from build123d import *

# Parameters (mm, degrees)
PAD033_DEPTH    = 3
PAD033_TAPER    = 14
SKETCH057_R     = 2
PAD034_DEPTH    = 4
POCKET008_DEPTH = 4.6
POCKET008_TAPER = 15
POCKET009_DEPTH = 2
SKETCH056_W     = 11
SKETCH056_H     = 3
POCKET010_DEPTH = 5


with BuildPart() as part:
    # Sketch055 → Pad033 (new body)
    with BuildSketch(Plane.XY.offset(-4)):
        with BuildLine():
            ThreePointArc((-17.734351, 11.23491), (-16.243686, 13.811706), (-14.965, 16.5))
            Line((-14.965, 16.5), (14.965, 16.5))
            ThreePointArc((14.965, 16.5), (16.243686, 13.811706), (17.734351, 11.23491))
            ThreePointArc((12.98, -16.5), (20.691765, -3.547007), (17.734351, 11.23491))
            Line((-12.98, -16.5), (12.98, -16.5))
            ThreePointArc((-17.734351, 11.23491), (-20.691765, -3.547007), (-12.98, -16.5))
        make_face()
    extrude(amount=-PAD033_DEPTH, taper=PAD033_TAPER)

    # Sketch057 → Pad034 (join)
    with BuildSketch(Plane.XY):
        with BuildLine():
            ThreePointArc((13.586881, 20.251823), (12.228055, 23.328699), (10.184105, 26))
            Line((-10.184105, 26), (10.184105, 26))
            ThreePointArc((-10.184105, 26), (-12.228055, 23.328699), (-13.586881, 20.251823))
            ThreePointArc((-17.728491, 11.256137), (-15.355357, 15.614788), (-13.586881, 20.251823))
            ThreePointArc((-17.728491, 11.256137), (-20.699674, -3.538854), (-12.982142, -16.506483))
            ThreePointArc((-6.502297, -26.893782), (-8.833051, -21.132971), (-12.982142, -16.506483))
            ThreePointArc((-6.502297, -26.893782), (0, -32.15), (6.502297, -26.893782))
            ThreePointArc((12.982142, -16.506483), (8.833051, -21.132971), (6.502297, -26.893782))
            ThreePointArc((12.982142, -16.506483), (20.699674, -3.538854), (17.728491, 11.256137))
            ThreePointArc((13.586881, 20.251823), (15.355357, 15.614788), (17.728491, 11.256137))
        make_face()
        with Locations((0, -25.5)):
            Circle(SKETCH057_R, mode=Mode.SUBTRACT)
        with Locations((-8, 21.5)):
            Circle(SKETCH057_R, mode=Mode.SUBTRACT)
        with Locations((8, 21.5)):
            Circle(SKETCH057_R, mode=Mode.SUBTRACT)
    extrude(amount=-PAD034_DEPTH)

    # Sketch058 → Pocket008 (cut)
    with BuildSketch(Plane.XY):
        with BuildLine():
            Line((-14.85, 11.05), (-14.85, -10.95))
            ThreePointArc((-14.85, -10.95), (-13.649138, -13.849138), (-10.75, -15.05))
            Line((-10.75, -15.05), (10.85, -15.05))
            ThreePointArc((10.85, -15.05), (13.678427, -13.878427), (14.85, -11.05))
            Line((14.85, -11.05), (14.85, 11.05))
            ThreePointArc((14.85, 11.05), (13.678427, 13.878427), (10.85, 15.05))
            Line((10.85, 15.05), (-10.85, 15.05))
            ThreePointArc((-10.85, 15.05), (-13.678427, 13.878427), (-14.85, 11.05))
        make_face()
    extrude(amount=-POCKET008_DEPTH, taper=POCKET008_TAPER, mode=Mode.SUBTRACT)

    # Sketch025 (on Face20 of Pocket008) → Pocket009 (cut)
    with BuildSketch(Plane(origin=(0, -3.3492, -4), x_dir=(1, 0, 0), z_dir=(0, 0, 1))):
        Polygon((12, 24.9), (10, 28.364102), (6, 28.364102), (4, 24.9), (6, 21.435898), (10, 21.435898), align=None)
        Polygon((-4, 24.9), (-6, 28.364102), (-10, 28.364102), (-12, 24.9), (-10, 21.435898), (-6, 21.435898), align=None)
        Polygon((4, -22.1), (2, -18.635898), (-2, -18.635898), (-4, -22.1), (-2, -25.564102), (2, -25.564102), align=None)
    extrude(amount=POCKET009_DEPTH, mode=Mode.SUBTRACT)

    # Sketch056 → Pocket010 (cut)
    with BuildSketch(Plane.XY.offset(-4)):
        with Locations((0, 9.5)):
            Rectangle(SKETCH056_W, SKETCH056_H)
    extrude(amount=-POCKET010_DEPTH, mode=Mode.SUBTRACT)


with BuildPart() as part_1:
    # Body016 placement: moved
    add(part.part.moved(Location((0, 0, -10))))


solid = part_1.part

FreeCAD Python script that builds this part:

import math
import FreeCAD as App
import Part
import Sketcher
from FreeCAD import Vector
Q = App.Units.Quantity


def add_polygon(sketch, points):
    """Adds a closed chain of lines whose ends are joined by coincident constraints."""
    first, n = sketch.GeometryCount, len(points)
    for a, b in zip(points, points[1:] + points[:1]):
        sketch.addGeometry(Part.LineSegment(App.Vector(*a, 0), App.Vector(*b, 0)), False)
    for i in range(n):
        sketch.addConstraint(Sketcher.Constraint("Coincident", first + i, 2, first + (i + 1) % n, 1))

doc = App.newDocument("Part")
body = doc.addObject("PartDesign::Body", "Body")

sketch1 = body.newObject("Sketcher::SketchObject", "Sketch")
sketch1.AttachmentSupport = (doc.getObject("XY_Plane"), [""])
sketch1.MapMode = "FlatFace"
sketch1.AttachmentOffset = App.Placement(Vector(0, 0, -4), App.Rotation())
sketch1.addGeometry(Part.ArcOfCircle(Part.Circle(Vector(-49, 31, 0), Vector(0, 0, 1), 37), math.radians(-32.35), math.radians(-23.13)), False)
sketch1.addGeometry(Part.ArcOfCircle(Part.Circle(Vector(0, 0, 0), Vector(0, 0, 1), 21), math.radians(148), math.radians(232)), False)
sketch1.addGeometry(Part.LineSegment(Vector(-13, -16, 0), Vector(13, -16, 0)), False)
sketch1.addGeometry(Part.ArcOfCircle(Part.Circle(Vector(0, 0, 0), Vector(0, 0, 1), 21), math.radians(-52), math.radians(32)), False)
sketch1.addGeometry(Part.ArcOfCircle(Part.Circle(Vector(49, 31, 0), Vector(0, 0, 1), 37), math.radians(-156.87), math.radians(-147.65)), False)
sketch1.addGeometry(Part.LineSegment(Vector(15, 16, 0), Vector(-15, 16, 0)), False)
sketch1.addConstraint(Sketcher.Constraint("Tangent", 0, 1, 1, 1))
sketch1.addConstraint(Sketcher.Constraint("Coincident", 1, 2, 2, 1))
sketch1.addConstraint(Sketcher.Constraint("Coincident", 2, 2, 3, 1))
sketch1.addConstraint(Sketcher.Constraint("Tangent", 3, 2, 4, 2))
sketch1.addConstraint(Sketcher.Constraint("Coincident", 4, 1, 5, 1))
sketch1.addConstraint(Sketcher.Constraint("Coincident", 5, 2, 0, 2))
sketch1.addConstraint(Sketcher.Constraint("Horizontal", 2))
sketch1.addConstraint(Sketcher.Constraint("Horizontal", 5))
sketch1.addConstraint(Sketcher.Constraint("Coincident", 1, 3, -1, 1))
sketch1.addConstraint(Sketcher.Constraint("Coincident", 3, 3, -1, 1))
sketch1.addConstraint(Sketcher.Constraint("Equal", 1, 3))
sketch1.addConstraint(Sketcher.Constraint("Equal", 0, 4))
sketch1.addConstraint(Sketcher.Constraint("Horizontal", 0, 3, 4, 3))
sketch1.addConstraint(Sketcher.Constraint("DistanceY", 2, 2, 4, 1, 33.0))
sketch1.addConstraint(Sketcher.Constraint("DistanceX", 2, 1, 2, 2, 25.96))
sketch1.addConstraint(Sketcher.Constraint("DistanceX", 5, 2, 5, 1, 29.93))
sketch1.addConstraint(Sketcher.Constraint("DistanceY", 1, 2, -1, 1, 16.5))
sketch1.addConstraint(Sketcher.Constraint("Radius", 0, 36.999781))
pad1 = body.newObject("PartDesign::Pad", "Pad")
pad1.Profile = sketch1
pad1.Length = 3
pad1.Reversed = True
pad1.TaperAngle = -14

sketch2 = body.newObject("Sketcher::SketchObject", "Sketch001")
sketch2.AttachmentSupport = (doc.getObject("XY_Plane"), [""])
sketch2.MapMode = "FlatFace"
sketch2.addGeometry(Part.ArcOfCircle(Part.Circle(Vector(0, 16.1, 0), Vector(0, 0, 1), 14.2), math.radians(17), math.radians(44)), False)
sketch2.addGeometry(Part.LineSegment(Vector(10.2, 26, 0), Vector(-10.2, 26, 0)), False)
sketch2.addGeometry(Part.ArcOfCircle(Part.Circle(Vector(0, 16.1, 0), Vector(0, 0, 1), 14.2), math.radians(136), math.radians(163)), False)
sketch2.addGeometry(Part.ArcOfCircle(Part.Circle(Vector(-49, 31.1, 0), Vector(0, 0, 1), 37), math.radians(-32.41), math.radians(-17.03)), False)
sketch2.addGeometry(Part.ArcOfCircle(Part.Circle(Vector(0, 0, 0), Vector(0, 0, 1), 21), math.radians(148), math.radians(232)), False)
sketch2.addGeometry(Part.ArcOfCircle(Part.Circle(Vector(-24.1, -30.7, 0), Vector(0, 0, 1), 18), math.radians(12), math.radians(52)), False)
sketch2.addGeometry(Part.ArcOfCircle(Part.Circle(Vector(0, -25.5, 0), Vector(0, 0, 1), 6.6), math.radians(-168), math.radians(-12)), False)
sketch2.addGeometry(Part.ArcOfCircle(Part.Circle(Vector(24.1, -30.7, 0), Vector(0, 0, 1), 18), math.radians(128), math.radians(168)), False)
sketch2.addGeometry(Part.ArcOfCircle(Part.Circle(Vector(0, 0, 0), Vector(0, 0, 1), 21), math.radians(-52), math.radians(32)), False)
sketch2.addGeometry(Part.ArcOfCircle(Part.Circle(Vector(49, 31.1, 0), Vector(0, 0, 1), 37), math.radians(-162.97), math.radians(-147.59)), False)
sketch2.addGeometry(Part.Circle(Vector(0, -25.5, 0), Vector(0, 0, 1), 2), False)
sketch2.addGeometry(Part.Circle(Vector(-8, 21.5, 0), Vector(0, 0, 1), 2), False)
sketch2.addGeometry(Part.Circle(Vector(8, 21.5, 0), Vector(0, 0, 1), 2), False)
sketch2.addConstraint(Sketcher.Constraint("Coincident", 0, 2, 1, 1))
sketch2.addConstraint(Sketcher.Constraint("Coincident", 1, 2, 2, 1))
sketch2.addConstraint(Sketcher.Constraint("Tangent", 2, 2, 3, 2))
sketch2.addConstraint(Sketcher.Constraint("Tangent", 3, 1, 4, 1))
sketch2.addConstraint(Sketcher.Constraint("Tangent", 4, 2, 5, 2))
sketch2.addConstraint(Sketcher.Constraint("Tangent", 5, 1, 6, 1))
sketch2.addConstraint(Sketcher.Constraint("Tangent", 6, 2, 7, 2))
sketch2.addConstraint(Sketcher.Constraint("Tangent", 7, 1, 8, 1))
sketch2.addConstraint(Sketcher.Constraint("Tangent", 8, 2, 9, 2))
sketch2.addConstraint(Sketcher.Constraint("Tangent", 9, 1, 0, 1))
sketch2.addConstraint(Sketcher.Constraint("Horizontal", 1))
sketch2.addConstraint(Sketcher.Constraint("Coincident", 4, 3, -1, 1))
sketch2.addConstraint(Sketcher.Constraint("Coincident", 8, 3, -1, 1))
sketch2.addConstraint(Sketcher.Constraint("Coincident", 10, 3, 6, 3))
sketch2.addConstraint(Sketcher.Constraint("Equal", 0, 2))
sketch2.addConstraint(Sketcher.Constraint("Equal", 5, 7))
sketch2.addConstraint(Sketcher.Constraint("Equal", 4, 8))
sketch2.addConstraint(Sketcher.Constraint("Equal", 3, 9))
sketch2.addConstraint(Sketcher.Constraint("Equal", 10, 11))
sketch2.addConstraint(Sketcher.Constraint("Equal", 11, 12))
sketch2.addConstraint(Sketcher.Constraint("Symmetric", 0, 3, 2, 3, -2))
sketch2.addConstraint(Sketcher.Constraint("Symmetric", 11, 3, 12, 3, -2))
sketch2.addConstraint(Sketcher.Constraint("PointOnObject", 6, 3, -2))
sketch2.addConstraint(Sketcher.Constraint("Diameter", 10, 4.0))
sketch2.addConstraint(Sketcher.Constraint("Radius", 4, 21.000001))
sketch2.addConstraint(Sketcher.Constraint("Radius", 6, 6.649999))
sketch2.addConstraint(Sketcher.Constraint("DistanceX", 11, 3, -1, 1, 8.0))
sketch2.addConstraint(Sketcher.Constraint("DistanceY", -1, 1, 0, 2, 26.0))
sketch2.addConstraint(Sketcher.Constraint("DistanceY", 6, 3, -1, 1, 25.500001))
sketch2.addConstraint(Sketcher.Constraint("DistanceY", -1, 1, 11, 3, 21.5))
sketch2.addConstraint(Sketcher.Constraint("Radius", 0, 14.21001))
sketch2.addConstraint(Sketcher.Constraint("Radius", 3, 37.000035))
sketch2.addConstraint(Sketcher.Constraint("Radius", 5, 18.020007))
sketch2.addConstraint(Sketcher.Constraint("DistanceX", 1, 2, 1, 1, 20.36821))
sketch2.addConstraint(Sketcher.Constraint("DistanceY", 0, 3, 3, 3, 14.998399))
pad2 = body.newObject("PartDesign::Pad", "Pad001")
pad2.Profile = sketch2
pad2.Length = 4
pad2.Reversed = True

sketch3 = body.newObject("Sketcher::SketchObject", "Sketch002")
sketch3.AttachmentSupport = (doc.getObject("XY_Plane"), [""])
sketch3.MapMode = "FlatFace"
sketch3.addGeometry(Part.LineSegment(Vector(-14.8, 11.1, 0), Vector(-14.8, -10.9, 0)), False)
sketch3.addGeometry(Part.ArcOfCircle(Part.Circle(Vector(-10.8, -11, 0), Vector(0, 0, 1), 4.1), math.radians(180), math.radians(270)), False)
sketch3.addGeometry(Part.LineSegment(Vector(-10.8, -15.1, 0), Vector(10.8, -15.1, 0)), False)
sketch3.addGeometry(Part.ArcOfCircle(Part.Circle(Vector(10.8, -11, 0), Vector(0, 0, 1), 4), math.radians(-90), math.radians(0)), False)
sketch3.addGeometry(Part.LineSegment(Vector(14.8, -11.1, 0), Vector(14.8, 11.1, 0)), False)
sketch3.addGeometry(Part.ArcOfCircle(Part.Circle(Vector(10.8, 11, 0), Vector(0, 0, 1), 4), math.radians(0), math.radians(90)), False)
sketch3.addGeometry(Part.LineSegment(Vector(10.8, 15.1, 0), Vector(-10.8, 15.1, 0)), False)
sketch3.addGeometry(Part.ArcOfCircle(Part.Circle(Vector(-10.8, 11, 0), Vector(0, 0, 1), 4), math.radians(90), math.radians(180)), False)
sketch3.addConstraint(Sketcher.Constraint("Tangent", 0, 2, 1, 1))
sketch3.addConstraint(Sketcher.Constraint("Tangent", 1, 2, 2, 1))
sketch3.addConstraint(Sketcher.Constraint("Tangent", 2, 2, 3, 1))
sketch3.addConstraint(Sketcher.Constraint("Tangent", 3, 2, 4, 1))
sketch3.addConstraint(Sketcher.Constraint("Tangent", 4, 2, 5, 1))
sketch3.addConstraint(Sketcher.Constraint("Tangent", 5, 2, 6, 1))
sketch3.addConstraint(Sketcher.Constraint("Tangent", 6, 2, 7, 1))
sketch3.addConstraint(Sketcher.Constraint("Tangent", 7, 2, 0, 1))
sketch3.addConstraint(Sketcher.Constraint("Vertical", 0))
sketch3.addConstraint(Sketcher.Constraint("Horizontal", 2))
sketch3.addConstraint(Sketcher.Constraint("Vertical", 4))
sketch3.addConstraint(Sketcher.Constraint("Horizontal", 6))
sketch3.addConstraint(Sketcher.Constraint("Equal", 3, 5))
sketch3.addConstraint(Sketcher.Constraint("Equal", 5, 7))
sketch3.addConstraint(Sketcher.Constraint("Symmetric", 3, 3, 7, 3, -1, 1))
sketch3.addConstraint(Sketcher.Constraint("Radius", 3, 4.0))
sketch3.addConstraint(Sketcher.Constraint("Radius", 1, 4.099999))
sketch3.addConstraint(Sketcher.Constraint("DistanceY", 0, 2, 0, 1, 22.0))
sketch3.addConstraint(Sketcher.Constraint("DistanceX", 2, 1, 2, 2, 21.6))
pocket1 = body.newObject("PartDesign::Pocket", "Pocket")
pocket1.Profile = sketch3
pocket1.Length = 4.6
pocket1.TaperAngle = -15

sketch4 = body.newObject("Sketcher::SketchObject", "Sketch003")
sketch4.AttachmentSupport = (doc.getObject("XY_Plane"), [""])
sketch4.MapMode = "FlatFace"
sketch4.AttachmentOffset = App.Placement(Vector(0, 0, -4), App.Rotation())
add_polygon(sketch4, [(12, 21.6), (10, 25), (6, 25), (4, 21.6), (6, 18.1), (10, 18.1)])
add_polygon(sketch4, [(-4, 21.6), (-6, 25), (-10, 25), (-12, 21.6), (-10, 18.1), (-6, 18.1)])
add_polygon(sketch4, [(4, -25.4), (2, -22), (-2, -22), (-4, -25.4), (-2, -28.9), (2, -28.9)])
sketch4.addConstraint(Sketcher.Constraint("Horizontal", 1))
sketch4.addConstraint(Sketcher.Constraint("Horizontal", 4))
sketch4.addConstraint(Sketcher.Constraint("Horizontal", 7))
sketch4.addConstraint(Sketcher.Constraint("Horizontal", 10))
sketch4.addConstraint(Sketcher.Constraint("Horizontal", 13))
sketch4.addConstraint(Sketcher.Constraint("Horizontal", 16))
sketch4.addConstraint(Sketcher.Constraint("Symmetric", 1, 2, 6, 2, -2))
sketch4.addConstraint(Sketcher.Constraint("Symmetric", 5, 2, 8, 2, -2))
sketch4.addConstraint(Sketcher.Constraint("Symmetric", 4, 2, 9, 2, -2))
sketch4.addConstraint(Sketcher.Constraint("Symmetric", 2, 2, 11, 2, -2))
sketch4.addConstraint(Sketcher.Constraint("Symmetric", 14, 2, 17, 2, -2))
sketch4.addConstraint(Sketcher.Constraint("Parallel", 0, 3))
sketch4.addConstraint(Sketcher.Constraint("Parallel", 2, 5))
sketch4.addConstraint(Sketcher.Constraint("Parallel", 3, 6))
sketch4.addConstraint(Sketcher.Constraint("Parallel", 5, 8))
sketch4.addConstraint(Sketcher.Constraint("Parallel", 8, 11))
sketch4.addConstraint(Sketcher.Constraint("Parallel", 9, 12))
sketch4.addConstraint(Sketcher.Constraint("Parallel", 11, 14))
sketch4.addConstraint(Sketcher.Constraint("Parallel", 12, 15))
sketch4.addConstraint(Sketcher.Constraint("Parallel", 14, 17))
sketch4.addConstraint(Sketcher.Constraint("Horizontal", 2, 2, 5, 2))
sketch4.addConstraint(Sketcher.Constraint("Vertical", 1, 2, 3, 2))
sketch4.addConstraint(Sketcher.Constraint("Vertical", 11, 2, 14, 2))
sketch4.addConstraint(Sketcher.Constraint("Vertical", 13, 2, 15, 2))
sketch4.addConstraint(Sketcher.Constraint("Equal", 10, 13))
sketch4.addConstraint(Sketcher.Constraint("Equal", 11, 12))
sketch4.addConstraint(Sketcher.Constraint("DistanceX", 1, 2, 1, 1, 4.0))
sketch4.addConstraint(Sketcher.Constraint("Angle", 0, Q("119.999997 deg")))
sketch4.addConstraint(Sketcher.Constraint("Distance", 0, 4.0))
sketch4.addConstraint(Sketcher.Constraint("DistanceY", 15, 2, 10, 2, 47.0))
sketch4.addConstraint(Sketcher.Constraint("DistanceY", -1, 1, 0, 2, 25.014902))
pocket2 = body.newObject("PartDesign::Pocket", "Pocket001")
pocket2.Profile = sketch4
pocket2.Length = 2
pocket2.Reversed = True

sketch5 = body.newObject("Sketcher::SketchObject", "Sketch004")
sketch5.AttachmentSupport = (doc.getObject("XY_Plane"), [""])
sketch5.MapMode = "FlatFace"
sketch5.AttachmentOffset = App.Placement(Vector(0, 0, -4), App.Rotation())
add_polygon(sketch5, [(-5.5, 11), (-5.5, 8), (5.5, 8), (5.5, 11)])
sketch5.addConstraint(Sketcher.Constraint("Vertical", 0))
sketch5.addConstraint(Sketcher.Constraint("Horizontal", 1))
sketch5.addConstraint(Sketcher.Constraint("Vertical", 2))
sketch5.addConstraint(Sketcher.Constraint("Horizontal", 3))
sketch5.addConstraint(Sketcher.Constraint("DistanceX", 1, 1, 1, 2, 11.0))
sketch5.addConstraint(Sketcher.Constraint("DistanceY", 0, 2, 0, 1, 3.0))
sketch5.addConstraint(Sketcher.Constraint("DistanceY", -1, 1, 0, 2, 8.0))
sketch5.addConstraint(Sketcher.Constraint("DistanceX", 0, 2, -1, 1, 5.5))
pocket3 = body.newObject("PartDesign::Pocket", "Pocket002")
pocket3.Profile = sketch5
pocket3.Length = 5
body2 = doc.addObject("PartDesign::Body", "Body001")
doc.recompute()

body.Placement = App.Placement(Vector(0, 0, -10), App.Rotation(Vector(0, 0, 1), 0))
boolean = body2.newObject("PartDesign::Boolean", "Boolean")
boolean.Type = "Fuse"
boolean.addObjects([body])

doc.recompute()
